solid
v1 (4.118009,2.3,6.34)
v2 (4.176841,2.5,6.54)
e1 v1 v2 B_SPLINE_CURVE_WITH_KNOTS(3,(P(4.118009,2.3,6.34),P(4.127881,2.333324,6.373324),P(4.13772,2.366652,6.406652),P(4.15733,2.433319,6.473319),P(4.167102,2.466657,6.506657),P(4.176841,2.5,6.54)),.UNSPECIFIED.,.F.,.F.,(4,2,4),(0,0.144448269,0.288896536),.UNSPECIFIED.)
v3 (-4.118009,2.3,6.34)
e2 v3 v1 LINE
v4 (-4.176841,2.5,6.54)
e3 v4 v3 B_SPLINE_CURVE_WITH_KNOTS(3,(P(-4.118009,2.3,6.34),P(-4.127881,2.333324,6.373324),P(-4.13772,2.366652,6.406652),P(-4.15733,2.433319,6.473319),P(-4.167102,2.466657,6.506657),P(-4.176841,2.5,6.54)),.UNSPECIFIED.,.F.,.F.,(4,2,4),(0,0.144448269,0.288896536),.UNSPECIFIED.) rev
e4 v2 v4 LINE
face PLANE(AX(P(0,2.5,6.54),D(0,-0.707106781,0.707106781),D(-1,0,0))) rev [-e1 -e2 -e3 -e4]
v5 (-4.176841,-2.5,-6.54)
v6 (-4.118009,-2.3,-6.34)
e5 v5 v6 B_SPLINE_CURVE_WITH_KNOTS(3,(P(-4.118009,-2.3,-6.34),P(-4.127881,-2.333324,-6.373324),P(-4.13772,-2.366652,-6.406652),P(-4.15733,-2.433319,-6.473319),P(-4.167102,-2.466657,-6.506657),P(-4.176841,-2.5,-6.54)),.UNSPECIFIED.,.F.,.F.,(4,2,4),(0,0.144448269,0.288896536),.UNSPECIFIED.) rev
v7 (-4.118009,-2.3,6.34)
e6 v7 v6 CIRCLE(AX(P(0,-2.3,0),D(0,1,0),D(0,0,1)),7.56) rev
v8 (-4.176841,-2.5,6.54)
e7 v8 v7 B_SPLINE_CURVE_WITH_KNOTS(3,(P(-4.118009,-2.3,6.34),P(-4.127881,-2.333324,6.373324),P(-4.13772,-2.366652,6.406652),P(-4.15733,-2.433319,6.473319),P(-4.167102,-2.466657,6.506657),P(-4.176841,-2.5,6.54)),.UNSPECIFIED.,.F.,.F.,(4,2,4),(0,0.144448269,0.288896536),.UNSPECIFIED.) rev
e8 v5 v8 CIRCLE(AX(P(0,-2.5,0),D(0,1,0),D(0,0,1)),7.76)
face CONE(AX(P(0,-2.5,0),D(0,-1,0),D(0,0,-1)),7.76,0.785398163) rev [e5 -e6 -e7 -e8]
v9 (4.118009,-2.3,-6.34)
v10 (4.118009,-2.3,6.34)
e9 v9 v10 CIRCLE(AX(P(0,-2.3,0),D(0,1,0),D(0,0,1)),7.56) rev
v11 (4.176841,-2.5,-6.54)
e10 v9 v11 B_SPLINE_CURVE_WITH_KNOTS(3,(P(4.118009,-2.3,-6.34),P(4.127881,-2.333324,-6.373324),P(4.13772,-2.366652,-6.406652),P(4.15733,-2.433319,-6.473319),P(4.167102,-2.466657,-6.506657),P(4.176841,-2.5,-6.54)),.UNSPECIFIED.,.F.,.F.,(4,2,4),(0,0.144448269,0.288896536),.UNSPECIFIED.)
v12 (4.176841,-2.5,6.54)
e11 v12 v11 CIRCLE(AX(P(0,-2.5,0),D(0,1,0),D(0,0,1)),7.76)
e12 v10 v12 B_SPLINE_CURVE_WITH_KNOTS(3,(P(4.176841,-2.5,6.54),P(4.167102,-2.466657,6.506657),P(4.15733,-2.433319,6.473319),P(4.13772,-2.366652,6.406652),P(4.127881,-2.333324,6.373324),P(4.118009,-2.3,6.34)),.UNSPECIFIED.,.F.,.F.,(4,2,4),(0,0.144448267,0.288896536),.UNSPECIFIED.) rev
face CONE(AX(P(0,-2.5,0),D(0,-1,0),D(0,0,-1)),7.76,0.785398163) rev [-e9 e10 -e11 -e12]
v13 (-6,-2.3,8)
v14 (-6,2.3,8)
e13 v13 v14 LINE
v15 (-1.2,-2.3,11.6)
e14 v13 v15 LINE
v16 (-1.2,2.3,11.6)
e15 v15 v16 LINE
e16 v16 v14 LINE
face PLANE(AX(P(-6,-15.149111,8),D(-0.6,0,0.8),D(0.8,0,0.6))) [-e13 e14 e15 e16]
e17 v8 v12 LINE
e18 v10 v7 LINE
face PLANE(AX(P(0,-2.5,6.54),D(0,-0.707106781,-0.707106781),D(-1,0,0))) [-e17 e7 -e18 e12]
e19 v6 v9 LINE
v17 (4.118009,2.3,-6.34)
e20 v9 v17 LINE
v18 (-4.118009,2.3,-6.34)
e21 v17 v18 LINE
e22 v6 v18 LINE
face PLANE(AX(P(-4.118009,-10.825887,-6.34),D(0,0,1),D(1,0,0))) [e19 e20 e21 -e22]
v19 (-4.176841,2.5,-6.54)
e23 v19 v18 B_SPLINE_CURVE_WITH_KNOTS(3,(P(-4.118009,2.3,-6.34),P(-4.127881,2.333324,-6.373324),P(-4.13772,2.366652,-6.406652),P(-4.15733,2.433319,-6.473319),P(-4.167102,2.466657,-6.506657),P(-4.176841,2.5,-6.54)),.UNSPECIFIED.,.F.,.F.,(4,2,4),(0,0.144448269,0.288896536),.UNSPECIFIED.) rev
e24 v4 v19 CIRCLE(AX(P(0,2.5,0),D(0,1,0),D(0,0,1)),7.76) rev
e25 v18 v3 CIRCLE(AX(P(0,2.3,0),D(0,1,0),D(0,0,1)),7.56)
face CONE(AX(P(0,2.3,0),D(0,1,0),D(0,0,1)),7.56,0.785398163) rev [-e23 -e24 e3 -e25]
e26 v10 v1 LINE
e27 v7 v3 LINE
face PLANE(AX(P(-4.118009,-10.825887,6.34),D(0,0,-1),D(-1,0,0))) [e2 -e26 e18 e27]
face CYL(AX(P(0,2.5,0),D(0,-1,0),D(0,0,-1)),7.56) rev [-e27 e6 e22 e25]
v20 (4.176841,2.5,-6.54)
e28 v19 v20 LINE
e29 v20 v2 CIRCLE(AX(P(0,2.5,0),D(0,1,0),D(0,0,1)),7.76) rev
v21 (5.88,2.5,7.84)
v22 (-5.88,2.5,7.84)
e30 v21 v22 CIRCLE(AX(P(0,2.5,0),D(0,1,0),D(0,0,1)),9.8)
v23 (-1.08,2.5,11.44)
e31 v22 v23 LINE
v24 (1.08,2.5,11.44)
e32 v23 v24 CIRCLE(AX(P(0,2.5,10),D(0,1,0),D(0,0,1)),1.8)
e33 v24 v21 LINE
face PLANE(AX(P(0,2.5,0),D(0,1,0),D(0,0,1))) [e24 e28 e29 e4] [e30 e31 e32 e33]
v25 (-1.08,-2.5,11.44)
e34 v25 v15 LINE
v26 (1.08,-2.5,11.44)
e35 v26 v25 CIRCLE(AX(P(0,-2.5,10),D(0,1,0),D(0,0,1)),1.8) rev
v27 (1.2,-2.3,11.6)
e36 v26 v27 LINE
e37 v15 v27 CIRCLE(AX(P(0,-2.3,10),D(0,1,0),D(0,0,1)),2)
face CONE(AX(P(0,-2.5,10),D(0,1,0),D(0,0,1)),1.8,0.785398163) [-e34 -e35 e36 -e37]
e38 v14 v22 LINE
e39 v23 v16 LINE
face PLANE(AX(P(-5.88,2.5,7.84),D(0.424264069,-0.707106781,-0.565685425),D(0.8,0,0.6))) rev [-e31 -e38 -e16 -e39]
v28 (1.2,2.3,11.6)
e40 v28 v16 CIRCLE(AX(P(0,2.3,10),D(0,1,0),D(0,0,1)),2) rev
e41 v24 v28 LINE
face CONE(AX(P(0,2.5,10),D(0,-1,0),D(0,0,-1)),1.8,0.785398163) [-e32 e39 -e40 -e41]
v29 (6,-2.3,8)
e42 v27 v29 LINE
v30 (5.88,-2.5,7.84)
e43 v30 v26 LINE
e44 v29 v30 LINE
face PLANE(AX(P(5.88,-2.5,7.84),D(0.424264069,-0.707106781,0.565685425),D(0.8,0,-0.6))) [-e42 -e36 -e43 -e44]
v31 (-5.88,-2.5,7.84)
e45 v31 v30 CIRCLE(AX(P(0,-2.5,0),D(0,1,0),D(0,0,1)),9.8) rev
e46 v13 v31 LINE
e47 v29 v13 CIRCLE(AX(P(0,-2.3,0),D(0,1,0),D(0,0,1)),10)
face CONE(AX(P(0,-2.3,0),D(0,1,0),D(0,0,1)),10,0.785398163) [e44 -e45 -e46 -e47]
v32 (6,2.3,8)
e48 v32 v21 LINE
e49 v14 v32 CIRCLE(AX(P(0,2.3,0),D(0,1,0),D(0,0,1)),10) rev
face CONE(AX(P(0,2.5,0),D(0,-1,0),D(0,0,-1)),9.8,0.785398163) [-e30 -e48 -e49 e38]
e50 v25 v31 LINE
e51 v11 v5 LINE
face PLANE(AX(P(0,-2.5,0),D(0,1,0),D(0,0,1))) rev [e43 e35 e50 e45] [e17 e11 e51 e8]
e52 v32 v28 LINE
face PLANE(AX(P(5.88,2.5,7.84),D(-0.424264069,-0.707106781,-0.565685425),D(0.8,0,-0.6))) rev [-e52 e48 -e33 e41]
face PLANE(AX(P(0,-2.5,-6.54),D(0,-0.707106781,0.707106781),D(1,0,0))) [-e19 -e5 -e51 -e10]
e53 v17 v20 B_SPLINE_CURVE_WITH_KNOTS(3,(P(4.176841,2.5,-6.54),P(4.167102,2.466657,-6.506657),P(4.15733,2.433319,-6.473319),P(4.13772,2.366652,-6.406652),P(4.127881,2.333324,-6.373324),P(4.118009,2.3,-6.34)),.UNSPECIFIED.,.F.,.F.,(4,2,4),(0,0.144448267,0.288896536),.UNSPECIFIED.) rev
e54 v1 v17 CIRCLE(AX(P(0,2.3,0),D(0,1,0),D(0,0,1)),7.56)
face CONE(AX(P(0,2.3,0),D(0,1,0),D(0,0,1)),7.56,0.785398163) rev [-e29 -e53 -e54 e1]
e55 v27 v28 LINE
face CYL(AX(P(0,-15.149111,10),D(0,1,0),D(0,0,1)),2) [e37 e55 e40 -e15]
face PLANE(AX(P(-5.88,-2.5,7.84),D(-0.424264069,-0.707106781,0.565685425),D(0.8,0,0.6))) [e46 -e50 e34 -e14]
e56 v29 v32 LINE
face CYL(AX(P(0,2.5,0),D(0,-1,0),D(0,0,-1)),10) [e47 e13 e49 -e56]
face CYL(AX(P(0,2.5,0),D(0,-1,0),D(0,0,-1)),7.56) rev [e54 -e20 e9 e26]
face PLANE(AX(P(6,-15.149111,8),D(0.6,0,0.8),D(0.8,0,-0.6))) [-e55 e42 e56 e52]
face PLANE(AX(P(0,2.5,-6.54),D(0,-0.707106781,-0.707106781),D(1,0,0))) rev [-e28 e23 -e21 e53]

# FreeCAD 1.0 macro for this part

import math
import FreeCAD as App
import Part
import Sketcher
from FreeCAD import Vector
Q = App.Units.Quantity


def edges_at(feature, points):
    """Names of the edges that pass closest to the given points."""
    edges = feature.Shape.Edges
    near = lambda p: min(range(len(edges)), key=lambda i: edges[i].distToShape(Part.Vertex(*p))[0])
    return sorted({f"Edge{near(p) + 1}" for p in points})

doc = App.newDocument("Part")
body = doc.addObject("PartDesign::Body", "Body")

sketch1 = body.newObject("Sketcher::SketchObject", "Sketch")
sketch1.AttachmentSupport = (doc.getObject("XZ_Plane"), [""])
sketch1.MapMode = "FlatFace"
sketch1.addGeometry(Part.Circle(Vector(0, 0, 0), Vector(0, 0, 1), 10), False)
sketch1.addGeometry(Part.Circle(Vector(0, 0, 0), Vector(0, 0, 1), 8), False)
sketch1.addConstraint(Sketcher.Constraint("Coincident", 0, 3, -1, 1))
sketch1.addConstraint(Sketcher.Constraint("Coincident", 1, 3, -1, 1))
sketch1.addConstraint(Sketcher.Constraint("Diameter", 0, Q("20 mm")))
sketch1.addConstraint(Sketcher.Constraint("Diameter", 1, Q("15.12 mm")))
pad1 = body.newObject("PartDesign::Pad", "Pad")
pad1.Profile = sketch1
pad1.Length = 5
pad1.Midplane = True

sketch2 = body.newObject("Sketcher::SketchObject", "Sketch001")
sketch2.AttachmentSupport = (doc.getObject("XZ_Plane"), [""])
sketch2.MapMode = "FlatFace"
sketch2.AttachmentOffset = App.Placement(Vector(0, 0, -2.5), App.Rotation())
sketch2.addGeometry(Part.LineSegment(Vector(4, 6, 0), Vector(-4, 6, 0)), False)
sketch2.addGeometry(Part.ArcOfCircle(Part.Circle(Vector(0, 0, 0), Vector(0, 0, 1), 8), math.radians(57), math.radians(123)), False)
sketch2.addGeometry(Part.LineSegment(Vector(-4, -6, 0), Vector(4, -6, 0)), False)
sketch2.addGeometry(Part.ArcOfCircle(Part.Circle(Vector(0, 0, 0), Vector(0, 0, 1), 8), math.radians(-123), math.radians(-57)), False)
sketch2.addConstraint(Sketcher.Constraint("Coincident", 0, 1, 1, 1))
sketch2.addConstraint(Sketcher.Constraint("Coincident", 1, 2, 0, 2))
sketch2.addConstraint(Sketcher.Constraint("Coincident", 2, 1, 3, 1))
sketch2.addConstraint(Sketcher.Constraint("Coincident", 3, 2, 2, 2))
sketch2.addConstraint(Sketcher.Constraint("Horizontal", 0))
sketch2.addConstraint(Sketcher.Constraint("Horizontal", 2))
sketch2.addConstraint(Sketcher.Constraint("Coincident", 1, 3, -1, 1))
sketch2.addConstraint(Sketcher.Constraint("Coincident", 3, 3, -1, 1))
sketch2.addConstraint(Sketcher.Constraint("Equal", 1, 3))
sketch2.addConstraint(Sketcher.Constraint("Vertical", 1, 2, 2, 1))
sketch2.addConstraint(Sketcher.Constraint("Radius", 1, Q("7.56 mm")))
sketch2.addConstraint(Sketcher.Constraint("DistanceY", -1, 1, 0, 1, Q("6.34 mm")))
pad2 = body.newObject("PartDesign::Pad", "Pad001")
pad2.Profile = sketch2
pad2.Length = 5

sketch3 = body.newObject("Sketcher::SketchObject", "Sketch002")
sketch3.AttachmentSupport = (doc.getObject("XZ_Plane"), [""])
sketch3.MapMode = "FlatFace"
sketch3.AttachmentOffset = App.Placement(Vector(0, 0, -2.5), App.Rotation())
sketch3.addGeometry(Part.LineSegment(Vector(-6, 8, 0), Vector(-1.2, 11.6, 0)), False)
sketch3.addGeometry(Part.ArcOfCircle(Part.Circle(Vector(0, 10, 0), Vector(0, 0, 1), 2), math.radians(53), math.radians(127)), False)
sketch3.addGeometry(Part.LineSegment(Vector(1.2, 11.6, 0), Vector(6, 8, 0)), False)
sketch3.addGeometry(Part.ArcOfCircle(Part.Circle(Vector(0, 0, 0), Vector(0, 0, 1), 10), math.radians(53), math.radians(127)), False)
sketch3.addConstraint(Sketcher.Constraint("Tangent", 0, 2, 1, 2))
sketch3.addConstraint(Sketcher.Constraint("Tangent", 1, 1, 2, 1))
sketch3.addConstraint(Sketcher.Constraint("Tangent", 2, 2, 3, 1))
sketch3.addConstraint(Sketcher.Constraint("Tangent", 3, 2, 0, 1))
sketch3.addConstraint(Sketcher.Constraint("Coincident", 3, 3, -1, 1))
sketch3.addConstraint(Sketcher.Constraint("PointOnObject", 1, 3, -2))
sketch3.addConstraint(Sketcher.Constraint("Radius", 1, Q("2 mm")))
sketch3.addConstraint(Sketcher.Constraint("Radius", 3, Q("10 mm")))
sketch3.addConstraint(Sketcher.Constraint("Distance", 0, Q("6 mm")))
pad3 = body.newObject("PartDesign::Pad", "Pad002")
pad3.Profile = sketch3
pad3.Length = 5
doc.recompute()

chamfer = body.newObject("PartDesign::Chamfer", "Chamfer")
chamfer.Base = (pad3, edges_at(pad3, [
    (-7.56, 2.5, 0),
    (-7.56, -2.5, 0),
    (0, 2.5, 6.34),
    (0, -2.5, 6.34),
    (0, 2.5, -6.34),
    (0, -2.5, -6.34),
    (0, -2.5, -10),
    (-3.6, 2.5, 9.8),
    (0, 2.5, 12),
    (3.6, 2.5, 9.8),
    (3.6, -2.5, 9.8),
    (0, -2.5, 12),
    (-3.6, -2.5, 9.8),
    (0, 2.5, -10),
    (7.56, -2.5, 0),
    (7.56, 2.5, 0),
]))
chamfer.Size = 0.2

doc.recompute()
